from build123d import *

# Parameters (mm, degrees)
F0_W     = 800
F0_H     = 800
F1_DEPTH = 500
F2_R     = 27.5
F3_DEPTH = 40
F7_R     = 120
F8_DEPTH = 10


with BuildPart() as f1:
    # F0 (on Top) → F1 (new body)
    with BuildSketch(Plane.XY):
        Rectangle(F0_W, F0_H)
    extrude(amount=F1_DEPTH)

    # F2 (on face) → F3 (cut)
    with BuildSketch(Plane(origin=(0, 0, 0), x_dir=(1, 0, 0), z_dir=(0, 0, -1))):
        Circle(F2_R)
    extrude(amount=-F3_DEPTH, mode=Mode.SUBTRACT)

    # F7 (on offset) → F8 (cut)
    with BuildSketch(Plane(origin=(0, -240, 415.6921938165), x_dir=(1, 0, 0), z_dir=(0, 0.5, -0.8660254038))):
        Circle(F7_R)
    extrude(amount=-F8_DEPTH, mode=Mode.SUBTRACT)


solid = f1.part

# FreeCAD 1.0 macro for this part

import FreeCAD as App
import Part
import Sketcher
from FreeCAD import Vector

doc = App.newDocument("Part")
body = doc.addObject("PartDesign::Body", "Body")

sketch1 = doc.addObject("Sketcher::SketchObject", "Sketch")
body.addObject(sketch1)
sketch1.AttachmentSupport = (doc.XY_Plane, [""])
sketch1.MapMode = "FlatFace"
sketch1.addGeometry(Part.LineSegment(Vector(-400, 400, 0), Vector(-400, -400, 0)), False)
sketch1.addGeometry(Part.LineSegment(Vector(-400, -400, 0), Vector(400, -400, 0)), False)
sketch1.addGeometry(Part.LineSegment(Vector(400, -400, 0), Vector(400, 400, 0)), False)
sketch1.addGeometry(Part.LineSegment(Vector(400, 400, 0), Vector(-400, 400, 0)), False)
sketch1.addConstraint(Sketcher.Constraint("Coincident", 0, 2, 1, 1))
sketch1.addConstraint(Sketcher.Constraint("Coincident", 1, 2, 2, 1))
sketch1.addConstraint(Sketcher.Constraint("Coincident", 2, 2, 3, 1))
sketch1.addConstraint(Sketcher.Constraint("Coincident", 3, 2, 0, 1))
sketch1.addConstraint(Sketcher.Constraint("Vertical", 0))
sketch1.addConstraint(Sketcher.Constraint("Horizontal", 1))
sketch1.addConstraint(Sketcher.Constraint("Vertical", 2))
sketch1.addConstraint(Sketcher.Constraint("Horizontal", 3))
sketch1.addConstraint(Sketcher.Constraint("Symmetric", 0, 2, 2, 2, -1, 1))
sketch1.addConstraint(Sketcher.Constraint("Equal", 3, 0))
sketch1.addConstraint(Sketcher.Constraint("DistanceX", 1, 1, 1, 2, 800.0))
pad1 = doc.addObject("PartDesign::Pad", "Pad")
body.addObject(pad1)
pad1.Profile = sketch1
pad1.Length = 500

sketch2 = doc.addObject("Sketcher::SketchObject", "Sketch001")
body.addObject(sketch2)
sketch2.AttachmentSupport = (doc.XY_Plane, [""])
sketch2.MapMode = "FlatFace"
sketch2.addGeometry(Part.Circle(Vector(0, 0, 0), Vector(0, 0, 1), 27.5), False)
sketch2.addConstraint(Sketcher.Constraint("Coincident", 0, 3, -1, 1))
sketch2.addConstraint(Sketcher.Constraint("Diameter", 0, 55.0))
pocket1 = doc.addObject("PartDesign::Pocket", "Pocket")
body.addObject(pocket1)
pocket1.Profile = sketch2
pocket1.Length = 40
pocket1.Reversed = True

sketch3 = doc.addObject("Sketcher::SketchObject", "Sketch002")
body.addObject(sketch3)
sketch3.Placement = App.Placement(Vector(0, -240, 415.692194), App.Rotation(Vector(1, 0, 0), Vector(0, -0.866025404, -0.5), Vector(0, 0.5, -0.866025404), "ZXY"))
sketch3.addGeometry(Part.Circle(Vector(0, 0, 0), Vector(0, 0, 1), 120), False)
sketch3.addConstraint(Sketcher.Constraint("Coincident", 0, 3, -1, 1))
sketch3.addConstraint(Sketcher.Constraint("Diameter", 0, 240.0))
pocket2 = doc.addObject("PartDesign::Pocket", "Pocket001")
body.addObject(pocket2)
pocket2.Profile = sketch3
pocket2.Length = 10

doc.recompute()
